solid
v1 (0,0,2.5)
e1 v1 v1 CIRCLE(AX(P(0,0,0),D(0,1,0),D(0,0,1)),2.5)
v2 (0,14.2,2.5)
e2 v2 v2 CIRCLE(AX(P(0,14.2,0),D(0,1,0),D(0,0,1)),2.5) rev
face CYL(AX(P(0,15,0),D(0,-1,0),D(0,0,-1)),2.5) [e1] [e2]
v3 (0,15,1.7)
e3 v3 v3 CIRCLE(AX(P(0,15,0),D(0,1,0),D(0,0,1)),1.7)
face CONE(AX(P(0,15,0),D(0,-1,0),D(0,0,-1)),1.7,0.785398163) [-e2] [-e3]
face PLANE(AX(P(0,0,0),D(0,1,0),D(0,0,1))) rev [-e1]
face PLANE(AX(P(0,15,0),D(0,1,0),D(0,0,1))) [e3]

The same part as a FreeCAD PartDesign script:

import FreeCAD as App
import Part
import Sketcher
from FreeCAD import Vector


def edges_at(feature, points):
    """Names of the edges that pass closest to the given points."""
    edges = feature.Shape.Edges
    near = lambda p: min(range(len(edges)), key=lambda i: edges[i].distToShape(Part.Vertex(*p))[0])
    return sorted({f"Edge{near(p) + 1}" for p in points})

doc = App.newDocument("Part")
params = doc.addObject("Spreadsheet::Sheet", "Params")
for row, (alias, value) in enumerate([
    ("sketch1_diameter", "5 mm"),
    ("pad1_length", "15 mm"),
    ("chamfer_size", "0.8 mm"),
], start=1):
    params.set(f"A{row}", alias)
    params.set(f"B{row}", "=" + value)
    params.setAlias(f"B{row}", alias)

body = doc.addObject("PartDesign::Body", "Body")

sketch1 = body.newObject("Sketcher::SketchObject", "Sketch")
sketch1.AttachmentSupport = (doc.getObject("XZ_Plane"), [""])
sketch1.MapMode = "FlatFace"
sketch1.addGeometry(Part.Circle(Vector(0, 0, 0), Vector(0, 0, 1), 2.5), False)
sketch1.addConstraint(Sketcher.Constraint("Coincident", 0, 3, -1, 1))
sketch1.addConstraint(Sketcher.Constraint("Diameter", 0, 5.0))
sketch1.setExpression("Constraints[1]", "Params.sketch1_diameter")
pad1 = body.newObject("PartDesign::Pad", "Pad")
pad1.Profile = sketch1
pad1.setExpression("Length", "Params.pad1_length")
pad1.Reversed = True
doc.recompute()

chamfer = body.newObject("PartDesign::Chamfer", "Chamfer")
chamfer.Base = (pad1, edges_at(pad1, [(-2.5, 15, 0)]))
chamfer.setExpression("Size", "Params.chamfer_size")

doc.recompute()
